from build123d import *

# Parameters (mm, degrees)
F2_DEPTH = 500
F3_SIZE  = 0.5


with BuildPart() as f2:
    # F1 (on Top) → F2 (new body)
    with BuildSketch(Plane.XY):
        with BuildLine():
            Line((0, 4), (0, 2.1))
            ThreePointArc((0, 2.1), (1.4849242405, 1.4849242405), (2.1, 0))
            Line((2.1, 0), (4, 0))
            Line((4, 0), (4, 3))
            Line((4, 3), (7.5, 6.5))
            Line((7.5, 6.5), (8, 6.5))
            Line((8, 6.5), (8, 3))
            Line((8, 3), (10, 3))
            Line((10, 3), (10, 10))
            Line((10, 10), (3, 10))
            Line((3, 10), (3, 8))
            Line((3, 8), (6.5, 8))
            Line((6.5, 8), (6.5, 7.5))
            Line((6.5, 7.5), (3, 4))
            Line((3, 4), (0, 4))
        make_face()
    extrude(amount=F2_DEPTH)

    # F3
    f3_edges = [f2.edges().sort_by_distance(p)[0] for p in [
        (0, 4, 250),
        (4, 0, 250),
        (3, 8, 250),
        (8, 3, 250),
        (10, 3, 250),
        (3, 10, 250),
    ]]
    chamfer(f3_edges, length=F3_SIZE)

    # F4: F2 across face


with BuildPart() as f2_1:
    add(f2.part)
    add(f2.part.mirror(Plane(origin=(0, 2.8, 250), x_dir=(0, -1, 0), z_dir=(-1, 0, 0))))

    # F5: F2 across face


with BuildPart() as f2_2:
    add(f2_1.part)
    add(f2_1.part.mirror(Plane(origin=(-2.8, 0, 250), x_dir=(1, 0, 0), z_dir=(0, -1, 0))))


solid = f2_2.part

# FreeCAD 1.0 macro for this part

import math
import FreeCAD as App
import Part
import Sketcher


def edges_at(feature, points):
    """Names of the edges that pass closest to the given points."""
    edges = feature.Shape.Edges
    near = lambda p: min(range(len(edges)), key=lambda i: edges[i].distToShape(Part.Vertex(*p))[0])
    return sorted({f"Edge{near(p) + 1}" for p in points})

doc = App.newDocument("Part")
body = doc.addObject("PartDesign::Body", "Body")

# Sketch on XY plane
sketch1 = doc.addObject("Sketcher::SketchObject", "Sketch")
body.addObject(sketch1)
sketch1.AttachmentSupport = (doc.XY_Plane, [""])
sketch1.MapMode = "FlatFace"
sketch1.addGeometry(Part.LineSegment(App.Vector(0, 4, 0), App.Vector(0, 2.1, 0)), False)
sketch1.addGeometry(Part.ArcOfCircle(Part.Circle(App.Vector(0, 0, 0), App.Vector(0, 0, 1), 2.1), math.radians(0), math.radians(90)), False)
sketch1.addGeometry(Part.LineSegment(App.Vector(2.1, 0, 0), App.Vector(4, 0, 0)), False)
sketch1.addGeometry(Part.LineSegment(App.Vector(4, 0, 0), App.Vector(4, 3, 0)), False)
sketch1.addGeometry(Part.LineSegment(App.Vector(4, 3, 0), App.Vector(7.5, 6.5, 0)), False)
sketch1.addGeometry(Part.LineSegment(App.Vector(7.5, 6.5, 0), App.Vector(8, 6.5, 0)), False)
sketch1.addGeometry(Part.LineSegment(App.Vector(8, 6.5, 0), App.Vector(8, 3, 0)), False)
sketch1.addGeometry(Part.LineSegment(App.Vector(8, 3, 0), App.Vector(10, 3, 0)), False)
sketch1.addGeometry(Part.LineSegment(App.Vector(10, 3, 0), App.Vector(10, 10, 0)), False)
sketch1.addGeometry(Part.LineSegment(App.Vector(10, 10, 0), App.Vector(3, 10, 0)), False)
sketch1.addGeometry(Part.LineSegment(App.Vector(3, 10, 0), App.Vector(3, 8, 0)), False)
sketch1.addGeometry(Part.LineSegment(App.Vector(3, 8, 0), App.Vector(6.5, 8, 0)), False)
sketch1.addGeometry(Part.LineSegment(App.Vector(6.5, 8, 0), App.Vector(6.5, 7.5, 0)), False)
sketch1.addGeometry(Part.LineSegment(App.Vector(6.5, 7.5, 0), App.Vector(3, 4, 0)), False)
sketch1.addGeometry(Part.LineSegment(App.Vector(3, 4, 0), App.Vector(0, 4, 0)), False)
sketch1.addConstraint(Sketcher.Constraint("Coincident", 0, 2, 1, 2))
sketch1.addConstraint(Sketcher.Constraint("Coincident", 1, 1, 2, 1))
sketch1.addConstraint(Sketcher.Constraint("Coincident", 2, 2, 3, 1))
sketch1.addConstraint(Sketcher.Constraint("Coincident", 3, 2, 4, 1))
sketch1.addConstraint(Sketcher.Constraint("Coincident", 4, 2, 5, 1))
sketch1.addConstraint(Sketcher.Constraint("Coincident", 5, 2, 6, 1))
sketch1.addConstraint(Sketcher.Constraint("Coincident", 6, 2, 7, 1))
sketch1.addConstraint(Sketcher.Constraint("Coincident", 7, 2, 8, 1))
sketch1.addConstraint(Sketcher.Constraint("Coincident", 8, 2, 9, 1))
sketch1.addConstraint(Sketcher.Constraint("Coincident", 9, 2, 10, 1))
sketch1.addConstraint(Sketcher.Constraint("Coincident", 10, 2, 11, 1))
sketch1.addConstraint(Sketcher.Constraint("Coincident", 11, 2, 12, 1))
sketch1.addConstraint(Sketcher.Constraint("Coincident", 12, 2, 13, 1))
sketch1.addConstraint(Sketcher.Constraint("Coincident", 13, 2, 14, 1))
sketch1.addConstraint(Sketcher.Constraint("Coincident", 14, 2, 0, 1))
sketch1.addConstraint(Sketcher.Constraint("Vertical", 0))
sketch1.addConstraint(Sketcher.Constraint("Horizontal", 2))
sketch1.addConstraint(Sketcher.Constraint("Vertical", 3))
sketch1.addConstraint(Sketcher.Constraint("Horizontal", 5))
sketch1.addConstraint(Sketcher.Constraint("Vertical", 6))
sketch1.addConstraint(Sketcher.Constraint("Horizontal", 7))
sketch1.addConstraint(Sketcher.Constraint("Vertical", 8))
sketch1.addConstraint(Sketcher.Constraint("Horizontal", 9))
sketch1.addConstraint(Sketcher.Constraint("Vertical", 10))
sketch1.addConstraint(Sketcher.Constraint("Horizontal", 11))
sketch1.addConstraint(Sketcher.Constraint("Vertical", 12))
sketch1.addConstraint(Sketcher.Constraint("Horizontal", 14))
sketch1.addConstraint(Sketcher.Constraint("Coincident", 1, 3, -1, 1))
sketch1.addConstraint(Sketcher.Constraint("PointOnObject", 0, 2, -2))
sketch1.addConstraint(Sketcher.Constraint("PointOnObject", 1, 1, -1))
sketch1.addConstraint(Sketcher.Constraint("Parallel", 4, 13))
sketch1.addConstraint(Sketcher.Constraint("Horizontal", 3, 2, 6, 2))
sketch1.addConstraint(Sketcher.Constraint("Vertical", 10, 2, 13, 2))
sketch1.addConstraint(Sketcher.Constraint("Equal", 2, 0))
sketch1.addConstraint(Sketcher.Constraint("Equal", 14, 3))
sketch1.addConstraint(Sketcher.Constraint("Equal", 11, 6))
sketch1.addConstraint(Sketcher.Constraint("Equal", 9, 8))
sketch1.addConstraint(Sketcher.Constraint("Equal", 7, 10))
sketch1.addConstraint(Sketcher.Constraint("Equal", 5, 12))
sketch1.addConstraint(Sketcher.Constraint("Radius", 1, 2.1))
sketch1.addConstraint(Sketcher.Constraint("DistanceX", 7, 1, 7, 2, 2.0))
sketch1.addConstraint(Sketcher.Constraint("DistanceX", 9, 2, 9, 1, 7.0))
sketch1.addConstraint(Sketcher.Constraint("DistanceX", 14, 2, 14, 1, 3.0))
sketch1.addConstraint(Sketcher.Constraint("DistanceX", 2, 1, 2, 2, 1.9))
sketch1.addConstraint(Sketcher.Constraint("DistanceX", 5, 1, 5, 2, 0.5))
pad1 = doc.addObject("PartDesign::Pad", "Pad")
body.addObject(pad1)
pad1.Profile = sketch1
pad1.Length = 500
doc.recompute()

chamfer = doc.addObject("PartDesign::Chamfer", "Chamfer")
body.addObject(chamfer)
chamfer.Base = (pad1, edges_at(pad1, [
    (0, 4, 250),
    (4, 0, 250),
    (3, 8, 250),
    (8, 3, 250),
    (10, 3, 250),
    (3, 10, 250),
]))
chamfer.Size = 0.5
body2 = doc.addObject("PartDesign::Body", "Body001")
doc.recompute()

body2.BaseFeature = body
doc.recompute()

mirroring = doc.addObject("Part::Mirroring", "Mirroring")
mirroring.Source = body
mirroring.Base = App.Vector(0, 2.8, 250)
mirroring.Normal = App.Vector(-1, 0, 0)
body3 = doc.addObject("PartDesign::Body", "Body002")
body3.BaseFeature = mirroring
boolean = doc.addObject("PartDesign::Boolean", "Boolean")
body2.addObject(boolean)
boolean.Type = "Fuse"
boolean.addObjects([body3])
doc.recompute()
body4 = doc.addObject("PartDesign::Body", "Body003")
doc.recompute()

body4.BaseFeature = body2
doc.recompute()

mirroring2 = doc.addObject("Part::Mirroring", "Mirroring001")
mirroring2.Source = body2
mirroring2.Base = App.Vector(-2.8, 0, 250)
mirroring2.Normal = App.Vector(0, -1, 0)
body5 = doc.addObject("PartDesign::Body", "Body004")
body5.BaseFeature = mirroring2
boolean2 = doc.addObject("PartDesign::Boolean", "Boolean001")
body4.addObject(boolean2)
boolean2.Type = "Fuse"
boolean2.addObjects([body5])
doc.recompute()
mirroring.Visibility = False
mirroring2.Visibility = False

doc.recompute()
